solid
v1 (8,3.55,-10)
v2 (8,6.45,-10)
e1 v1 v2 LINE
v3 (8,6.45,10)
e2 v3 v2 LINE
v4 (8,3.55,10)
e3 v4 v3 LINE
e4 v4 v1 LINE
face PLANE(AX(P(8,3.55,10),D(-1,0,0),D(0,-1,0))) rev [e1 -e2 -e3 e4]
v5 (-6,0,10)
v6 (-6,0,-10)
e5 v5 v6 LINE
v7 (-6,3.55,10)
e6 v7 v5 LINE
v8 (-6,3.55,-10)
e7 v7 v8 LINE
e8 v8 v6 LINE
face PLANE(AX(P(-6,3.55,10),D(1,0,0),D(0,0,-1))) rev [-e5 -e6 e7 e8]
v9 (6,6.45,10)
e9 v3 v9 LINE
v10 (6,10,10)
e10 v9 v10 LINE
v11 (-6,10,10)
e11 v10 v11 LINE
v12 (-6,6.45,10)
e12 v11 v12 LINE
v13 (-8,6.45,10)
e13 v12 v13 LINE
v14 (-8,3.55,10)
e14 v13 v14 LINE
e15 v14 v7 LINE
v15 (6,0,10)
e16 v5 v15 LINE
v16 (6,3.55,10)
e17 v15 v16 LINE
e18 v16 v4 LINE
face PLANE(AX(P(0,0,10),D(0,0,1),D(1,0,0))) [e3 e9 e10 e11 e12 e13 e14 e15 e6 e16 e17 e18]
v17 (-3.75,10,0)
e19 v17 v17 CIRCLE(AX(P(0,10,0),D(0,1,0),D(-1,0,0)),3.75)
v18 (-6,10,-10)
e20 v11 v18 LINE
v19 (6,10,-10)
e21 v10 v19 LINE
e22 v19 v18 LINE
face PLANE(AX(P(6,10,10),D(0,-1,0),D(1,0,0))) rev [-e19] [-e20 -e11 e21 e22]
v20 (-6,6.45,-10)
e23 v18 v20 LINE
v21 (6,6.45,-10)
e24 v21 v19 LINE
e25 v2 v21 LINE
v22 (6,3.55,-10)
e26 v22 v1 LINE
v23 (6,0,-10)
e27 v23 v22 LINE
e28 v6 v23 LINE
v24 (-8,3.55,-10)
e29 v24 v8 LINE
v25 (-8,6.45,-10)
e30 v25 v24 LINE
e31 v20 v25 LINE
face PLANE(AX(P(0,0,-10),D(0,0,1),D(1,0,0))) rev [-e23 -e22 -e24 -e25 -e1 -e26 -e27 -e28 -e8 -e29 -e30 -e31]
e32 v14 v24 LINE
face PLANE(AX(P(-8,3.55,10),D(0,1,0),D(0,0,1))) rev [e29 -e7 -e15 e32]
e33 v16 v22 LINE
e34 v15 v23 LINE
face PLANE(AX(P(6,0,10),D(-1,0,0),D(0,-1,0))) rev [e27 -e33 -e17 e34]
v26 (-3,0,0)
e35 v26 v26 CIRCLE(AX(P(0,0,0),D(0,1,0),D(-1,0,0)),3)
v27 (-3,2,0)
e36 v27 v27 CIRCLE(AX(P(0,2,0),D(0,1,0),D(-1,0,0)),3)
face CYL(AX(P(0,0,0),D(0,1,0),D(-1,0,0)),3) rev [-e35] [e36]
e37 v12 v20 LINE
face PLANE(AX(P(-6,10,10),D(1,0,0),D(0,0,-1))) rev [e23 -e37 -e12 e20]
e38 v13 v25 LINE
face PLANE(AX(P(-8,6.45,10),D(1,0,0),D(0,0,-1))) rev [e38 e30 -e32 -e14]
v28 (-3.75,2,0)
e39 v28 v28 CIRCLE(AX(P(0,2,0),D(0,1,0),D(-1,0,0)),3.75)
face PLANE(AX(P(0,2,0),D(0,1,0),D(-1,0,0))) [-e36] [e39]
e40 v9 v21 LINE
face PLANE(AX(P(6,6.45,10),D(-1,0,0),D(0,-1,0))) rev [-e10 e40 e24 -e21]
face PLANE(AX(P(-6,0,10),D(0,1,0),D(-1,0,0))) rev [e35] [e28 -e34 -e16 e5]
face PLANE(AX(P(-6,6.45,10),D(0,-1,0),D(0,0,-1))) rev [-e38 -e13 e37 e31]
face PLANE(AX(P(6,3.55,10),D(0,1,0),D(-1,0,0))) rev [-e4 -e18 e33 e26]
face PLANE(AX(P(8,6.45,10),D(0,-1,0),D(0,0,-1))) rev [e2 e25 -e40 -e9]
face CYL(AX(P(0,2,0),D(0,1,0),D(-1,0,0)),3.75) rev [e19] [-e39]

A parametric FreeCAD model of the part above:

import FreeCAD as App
import Part
import Sketcher
Q = App.Units.Quantity


def add_polygon(sketch, points):
    """Adds a closed chain of lines whose ends are joined by coincident constraints."""
    first, n = sketch.GeometryCount, len(points)
    for a, b in zip(points, points[1:] + points[:1]):
        sketch.addGeometry(Part.LineSegment(App.Vector(*a, 0), App.Vector(*b, 0)), False)
    for i in range(n):
        sketch.addConstraint(Sketcher.Constraint("Coincident", first + i, 2, first + (i + 1) % n, 1))

doc = App.newDocument("Part")
body = doc.addObject("PartDesign::Body", "Body")

sketch1 = doc.addObject("Sketcher::SketchObject", "Sketch")
body.addObject(sketch1)
sketch1.AttachmentSupport = (doc.XY_Plane, [""])
sketch1.MapMode = "FlatFace"
add_polygon(sketch1, [(-6, 10), (-6, 6.5), (-8, 6.5), (-8, 3.5), (-6, 3.5), (-6, 0), (6, 0), (6, 3.5), (8, 3.5), (8, 6.5), (6, 6.5), (6, 10)])
sketch1.addConstraint(Sketcher.Constraint("Vertical", 0))
sketch1.addConstraint(Sketcher.Constraint("Horizontal", 1))
sketch1.addConstraint(Sketcher.Constraint("Vertical", 2))
sketch1.addConstraint(Sketcher.Constraint("Horizontal", 3))
sketch1.addConstraint(Sketcher.Constraint("Vertical", 4))
sketch1.addConstraint(Sketcher.Constraint("Horizontal", 5))
sketch1.addConstraint(Sketcher.Constraint("Vertical", 6))
sketch1.addConstraint(Sketcher.Constraint("Horizontal", 7))
sketch1.addConstraint(Sketcher.Constraint("Vertical", 8))
sketch1.addConstraint(Sketcher.Constraint("Horizontal", 9))
sketch1.addConstraint(Sketcher.Constraint("Vertical", 10))
sketch1.addConstraint(Sketcher.Constraint("Horizontal", 11))
sketch1.addConstraint(Sketcher.Constraint("Symmetric", 4, 2, 5, 2, -1, 1))
sketch1.addConstraint(Sketcher.Constraint("Symmetric", 2, 2, 7, 2, -2))
sketch1.addConstraint(Sketcher.Constraint("Symmetric", 0, 2, 9, 2, -2))
sketch1.addConstraint(Sketcher.Constraint("Vertical", 0, 2, 3, 2))
sketch1.addConstraint(Sketcher.Constraint("Equal", 0, 4))
sketch1.addConstraint(Sketcher.Constraint("DistanceX", 1, 2, 1, 1, Q("2 mm")))
sketch1.addConstraint(Sketcher.Constraint("DistanceX", 5, 1, 5, 2, Q("12 mm")))
sketch1.addConstraint(Sketcher.Constraint("DistanceY", 2, 2, 2, 1, Q("2.9 mm")))
sketch1.addConstraint(Sketcher.Constraint("DistanceY", -1, 1, 10, 2, Q("10 mm")))
pad1 = doc.addObject("PartDesign::Pad", "Pad")
body.addObject(pad1)
pad1.Profile = sketch1
pad1.Length = 20
pad1.Midplane = True

sketch2 = doc.addObject("Sketcher::SketchObject", "Sketch001")
body.addObject(sketch2)
sketch2.AttachmentSupport = (doc.XZ_Plane, [""])
sketch2.MapMode = "FlatFace"
sketch2.AttachmentOffset = App.Placement(App.Vector(0, 0, -10), App.Rotation())
sketch2.addGeometry(Part.Circle(App.Vector(0, 0, 0), App.Vector(0, 0, 1), 3.8), False)
sketch2.addConstraint(Sketcher.Constraint("Coincident", 0, 3, -1, 1))
sketch2.addConstraint(Sketcher.Constraint("Diameter", 0, Q("7.5 mm")))
pocket1 = doc.addObject("PartDesign::Pocket", "Pocket")
body.addObject(pocket1)
pocket1.Profile = sketch2
pocket1.Length = 8
pocket1.Reversed = True

sketch3 = doc.addObject("Sketcher::SketchObject", "Sketch002")
body.addObject(sketch3)
sketch3.AttachmentSupport = (doc.XZ_Plane, [""])
sketch3.MapMode = "FlatFace"
sketch3.AttachmentOffset = App.Placement(App.Vector(0, 0, -2), App.Rotation())
sketch3.addGeometry(Part.Circle(App.Vector(0, 0, 0), App.Vector(0, 0, 1), 3), False)
sketch3.addConstraint(Sketcher.Constraint("Coincident", 0, 3, -1, 1))
sketch3.addConstraint(Sketcher.Constraint("Diameter", 0, Q("6 mm")))
pocket2 = doc.addObject("PartDesign::Pocket", "Pocket001")
body.addObject(pocket2)
pocket2.Profile = sketch3
pocket2.Type = "ThroughAll"
pocket2.Reversed = True

doc.recompute()
